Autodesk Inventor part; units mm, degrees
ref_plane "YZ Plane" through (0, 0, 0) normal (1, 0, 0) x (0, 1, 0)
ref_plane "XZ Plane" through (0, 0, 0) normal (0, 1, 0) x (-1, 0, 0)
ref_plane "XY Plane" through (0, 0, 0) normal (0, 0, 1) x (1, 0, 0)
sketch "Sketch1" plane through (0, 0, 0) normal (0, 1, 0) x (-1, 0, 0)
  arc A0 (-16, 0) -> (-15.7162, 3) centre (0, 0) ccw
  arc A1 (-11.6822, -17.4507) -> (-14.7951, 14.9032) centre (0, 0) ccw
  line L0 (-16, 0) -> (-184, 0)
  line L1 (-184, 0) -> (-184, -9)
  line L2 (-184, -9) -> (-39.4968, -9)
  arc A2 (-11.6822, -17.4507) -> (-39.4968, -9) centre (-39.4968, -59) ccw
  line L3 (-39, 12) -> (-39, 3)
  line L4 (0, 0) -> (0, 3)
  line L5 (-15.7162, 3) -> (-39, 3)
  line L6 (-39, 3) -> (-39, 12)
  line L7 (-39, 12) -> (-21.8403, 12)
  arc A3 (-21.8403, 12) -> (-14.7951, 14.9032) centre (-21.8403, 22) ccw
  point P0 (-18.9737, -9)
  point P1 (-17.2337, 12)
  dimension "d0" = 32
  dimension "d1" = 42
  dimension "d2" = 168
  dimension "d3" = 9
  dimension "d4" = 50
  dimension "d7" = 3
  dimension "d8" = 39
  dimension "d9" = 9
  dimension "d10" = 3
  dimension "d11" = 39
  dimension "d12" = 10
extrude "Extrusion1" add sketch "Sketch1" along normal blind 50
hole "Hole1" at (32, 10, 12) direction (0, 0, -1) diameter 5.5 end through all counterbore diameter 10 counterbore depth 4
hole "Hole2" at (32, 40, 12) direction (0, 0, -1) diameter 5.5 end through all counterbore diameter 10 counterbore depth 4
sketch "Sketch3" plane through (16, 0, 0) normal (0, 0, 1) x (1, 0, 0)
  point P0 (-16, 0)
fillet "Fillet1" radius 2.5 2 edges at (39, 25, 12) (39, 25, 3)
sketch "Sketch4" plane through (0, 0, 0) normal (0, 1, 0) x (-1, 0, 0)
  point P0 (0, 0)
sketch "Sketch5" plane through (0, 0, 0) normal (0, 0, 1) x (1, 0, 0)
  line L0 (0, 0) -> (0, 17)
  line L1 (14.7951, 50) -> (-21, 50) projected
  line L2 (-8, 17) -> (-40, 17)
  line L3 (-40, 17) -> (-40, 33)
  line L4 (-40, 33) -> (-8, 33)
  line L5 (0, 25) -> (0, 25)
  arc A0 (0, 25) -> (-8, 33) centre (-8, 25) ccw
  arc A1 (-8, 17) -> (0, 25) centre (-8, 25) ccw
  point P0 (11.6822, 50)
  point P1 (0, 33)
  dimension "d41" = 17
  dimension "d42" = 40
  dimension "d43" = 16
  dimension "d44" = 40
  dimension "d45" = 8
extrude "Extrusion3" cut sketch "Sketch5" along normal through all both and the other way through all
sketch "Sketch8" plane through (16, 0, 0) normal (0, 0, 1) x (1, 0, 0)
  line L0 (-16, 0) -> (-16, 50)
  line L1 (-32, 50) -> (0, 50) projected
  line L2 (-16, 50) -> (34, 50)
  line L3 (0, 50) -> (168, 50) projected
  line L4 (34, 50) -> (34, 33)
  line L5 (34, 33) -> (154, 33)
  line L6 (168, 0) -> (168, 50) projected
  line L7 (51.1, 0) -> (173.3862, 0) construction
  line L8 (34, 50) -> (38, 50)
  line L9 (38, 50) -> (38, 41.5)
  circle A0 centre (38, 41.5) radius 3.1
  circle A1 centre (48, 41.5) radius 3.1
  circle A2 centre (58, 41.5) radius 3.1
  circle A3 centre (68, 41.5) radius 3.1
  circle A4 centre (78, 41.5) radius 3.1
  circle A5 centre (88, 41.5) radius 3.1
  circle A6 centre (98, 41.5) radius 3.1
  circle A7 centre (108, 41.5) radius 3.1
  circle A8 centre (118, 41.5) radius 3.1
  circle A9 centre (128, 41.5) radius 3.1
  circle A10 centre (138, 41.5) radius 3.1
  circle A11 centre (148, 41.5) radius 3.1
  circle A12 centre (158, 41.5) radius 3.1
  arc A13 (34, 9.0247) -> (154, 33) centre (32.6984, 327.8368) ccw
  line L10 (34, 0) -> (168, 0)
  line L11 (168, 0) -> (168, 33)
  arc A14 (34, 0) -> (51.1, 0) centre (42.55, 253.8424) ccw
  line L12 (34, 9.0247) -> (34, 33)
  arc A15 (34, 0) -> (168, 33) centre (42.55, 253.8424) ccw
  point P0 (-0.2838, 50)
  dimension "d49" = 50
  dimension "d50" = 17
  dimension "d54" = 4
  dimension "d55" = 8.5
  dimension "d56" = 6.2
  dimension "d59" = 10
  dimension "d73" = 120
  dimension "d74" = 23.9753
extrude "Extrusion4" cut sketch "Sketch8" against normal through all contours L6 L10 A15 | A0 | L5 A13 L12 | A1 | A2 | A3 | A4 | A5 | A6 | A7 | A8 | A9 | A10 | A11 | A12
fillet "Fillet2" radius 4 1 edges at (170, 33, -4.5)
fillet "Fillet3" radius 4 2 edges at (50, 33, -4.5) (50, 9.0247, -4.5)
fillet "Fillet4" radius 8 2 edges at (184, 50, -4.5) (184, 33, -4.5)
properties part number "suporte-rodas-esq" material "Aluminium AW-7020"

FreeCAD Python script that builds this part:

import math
import FreeCAD as App
import Part
import Sketcher
Q = App.Units.Quantity


def edges_at(feature, points):
    """Names of the edges that pass closest to the given points."""
    edges = feature.Shape.Edges
    near = lambda p: min(range(len(edges)), key=lambda i: edges[i].distToShape(Part.Vertex(*p))[0])
    return sorted({f"Edge{near(p) + 1}" for p in points})

doc = App.newDocument("Part")
body = doc.addObject("PartDesign::Body", "Body")

sketch1 = body.newObject("Sketcher::SketchObject", "Sketch")
sketch1.AttachmentSupport = (doc.getObject("XZ_Plane"), [""])
sketch1.MapMode = "FlatFace"
sketch1.addGeometry([
    Part.ArcOfCircle(Part.Circle(App.Vector(0, 0, 0), App.Vector(0, 0, 1), 16), math.radians(11), math.radians(360)),
    Part.LineSegment(App.Vector(16, 0, 0), App.Vector(184, 0, 0)),
    Part.LineSegment(App.Vector(184, 0, 0), App.Vector(184, -9, 0)),
    Part.LineSegment(App.Vector(184, -9, 0), App.Vector(39.5, -9, 0)),
    Part.ArcOfCircle(Part.Circle(App.Vector(39.5, -59, 0), App.Vector(0, 0, 1), 50), math.radians(90), math.radians(124)),
    Part.ArcOfCircle(Part.Circle(App.Vector(0, 0, 0), App.Vector(0, 0, 1), 21), math.radians(45), math.radians(304)),
    Part.ArcOfCircle(Part.Circle(App.Vector(21.8, 22, 0), App.Vector(0, 0, 1), 10), math.radians(-135), math.radians(-90)),
    Part.LineSegment(App.Vector(21.8, 12, 0), App.Vector(39, 12, 0)),
    Part.LineSegment(App.Vector(39, 12, 0), App.Vector(39, 3, 0)),
    Part.LineSegment(App.Vector(39, 3, 0), App.Vector(15.7, 3, 0)),
], False)
sketch1.addConstraint([
    Sketcher.Constraint("Coincident", 0, 2, 1, 1),
    Sketcher.Constraint("Coincident", 1, 2, 2, 1),
    Sketcher.Constraint("Coincident", 2, 2, 3, 1),
    Sketcher.Constraint("Tangent", 3, 2, 4, 1),
    Sketcher.Constraint("Tangent", 4, 2, 5, 2),
    Sketcher.Constraint("Tangent", 5, 1, 6, 1),
    Sketcher.Constraint("Tangent", 6, 2, 7, 1),
    Sketcher.Constraint("Coincident", 7, 2, 8, 1),
    Sketcher.Constraint("Coincident", 8, 2, 9, 1),
    Sketcher.Constraint("Coincident", 9, 2, 0, 1),
    Sketcher.Constraint("Horizontal", 1),
    Sketcher.Constraint("Vertical", 2),
    Sketcher.Constraint("Horizontal", 3),
    Sketcher.Constraint("Horizontal", 7),
    Sketcher.Constraint("Vertical", 8),
    Sketcher.Constraint("Horizontal", 9),
    Sketcher.Constraint("Coincident", 0, 3, -1, 1),
    Sketcher.Constraint("Coincident", 5, 3, -1, 1),
    Sketcher.Constraint("PointOnObject", 0, 2, -1),
    Sketcher.Constraint("Equal", 2, 8),
    Sketcher.Constraint("Radius", 0, Q("16 mm")),
    Sketcher.Constraint("Radius", 4, Q("50 mm")),
    Sketcher.Constraint("Radius", 5, Q("21 mm")),
    Sketcher.Constraint("Radius", 6, Q("10 mm")),
    Sketcher.Constraint("DistanceX", 1, 1, 1, 2, Q("168 mm")),
    Sketcher.Constraint("DistanceY", 2, 2, 2, 1, Q("9 mm")),
    Sketcher.Constraint("DistanceX", -1, 1, 7, 2, Q("39 mm")),
    Sketcher.Constraint("DistanceY", -1, 1, 8, 2, Q("3 mm")),
])
pad1 = body.newObject("PartDesign::Pad", "Pad")
pad1.Profile = sketch1
pad1.Length = 50
pad1.Reversed = True

sketch2 = body.newObject("Sketcher::SketchObject", "Sketch001")
sketch2.AttachmentSupport = (doc.getObject("XY_Plane"), [""])
sketch2.MapMode = "FlatFace"
sketch2.AttachmentOffset = App.Placement(App.Vector(0, 0, 12), App.Rotation())
sketch2.addGeometry(Part.Circle(App.Vector(32, 10, 0), App.Vector(0, 0, 1), 2.8), False)
sketch2.addConstraint([
    Sketcher.Constraint("Diameter", 0, Q("5.5 mm")),
    Sketcher.Constraint("DistanceX", -1, 1, 0, 3, Q("32 mm")),
    Sketcher.Constraint("DistanceY", -1, 1, 0, 3, Q("10 mm")),
])
doc.recompute()
hole = body.newObject("PartDesign::Hole", "Hole")
hole.Profile = sketch2
hole.ThreadType = "None"
hole.Diameter = 5.5
hole.DepthType = "ThroughAll"
hole.HoleCutType = "Counterbore"
hole.HoleCutDiameter = 10
hole.HoleCutDepth = 4

sketch3 = body.newObject("Sketcher::SketchObject", "Sketch002")
sketch3.AttachmentSupport = (doc.getObject("XY_Plane"), [""])
sketch3.MapMode = "FlatFace"
sketch3.AttachmentOffset = App.Placement(App.Vector(0, 0, 12), App.Rotation())
sketch3.addGeometry(Part.Circle(App.Vector(32, 40, 0), App.Vector(0, 0, 1), 2.8), False)
sketch3.addConstraint([
    Sketcher.Constraint("Diameter", 0, Q("5.5 mm")),
    Sketcher.Constraint("DistanceX", -1, 1, 0, 3, Q("32 mm")),
    Sketcher.Constraint("DistanceY", -1, 1, 0, 3, Q("40 mm")),
])
doc.recompute()
hole2 = body.newObject("PartDesign::Hole", "Hole001")
hole2.Profile = sketch3
hole2.ThreadType = "None"
hole2.Diameter = 5.5
hole2.DepthType = "ThroughAll"
hole2.HoleCutType = "Counterbore"
hole2.HoleCutDiameter = 10
hole2.HoleCutDepth = 4
doc.recompute()

fillet = body.newObject("PartDesign::Fillet", "Fillet")
fillet.Base = (hole2, edges_at(hole2, [(39, 25, 12), (39, 25, 3)]))
fillet.Radius = 2.5

sketch4 = body.newObject("Sketcher::SketchObject", "Sketch003")
sketch4.AttachmentSupport = (doc.getObject("XY_Plane"), [""])
sketch4.MapMode = "FlatFace"
sketch4.addGeometry([
    Part.LineSegment(App.Vector(-40, 17, 0), App.Vector(-8, 17, 0)),
    Part.ArcOfCircle(Part.Circle(App.Vector(-8, 25, 0), App.Vector(0, 0, 1), 8), math.radians(-90), math.radians(90)),
    Part.LineSegment(App.Vector(-8, 33, 0), App.Vector(-40, 33, 0)),
    Part.LineSegment(App.Vector(-40, 33, 0), App.Vector(-40, 17, 0)),
], False)
sketch4.addConstraint([
    Sketcher.Constraint("Tangent", 0, 2, 1, 1),
    Sketcher.Constraint("Tangent", 1, 2, 2, 1),
    Sketcher.Constraint("Coincident", 2, 2, 3, 1),
    Sketcher.Constraint("Coincident", 3, 2, 0, 1),
    Sketcher.Constraint("Horizontal", 0),
    Sketcher.Constraint("Horizontal", 2),
    Sketcher.Constraint("Vertical", 3),
    Sketcher.Constraint("Radius", 1, Q("8 mm")),
    Sketcher.Constraint("DistanceX", 1, 3, -1, 1, Q("8 mm")),
    Sketcher.Constraint("DistanceY", -1, 1, 0, 2, Q("17 mm")),
    Sketcher.Constraint("DistanceX", 2, 2, -1, 1, Q("40 mm")),
])
pocket1 = body.newObject("PartDesign::Pocket", "Pocket")
pocket1.Profile = sketch4
pocket1.Type = "ThroughAll"
pocket1.Midplane = True

sketch5 = body.newObject("Sketcher::SketchObject", "Sketch004")
sketch5.AttachmentSupport = (doc.getObject("XY_Plane"), [""])
sketch5.MapMode = "FlatFace"
sketch5.addGeometry([
    Part.LineSegment(App.Vector(184, 0, 0), App.Vector(184, 33, 0)),
    Part.ArcOfCircle(Part.Circle(App.Vector(58.5, 253.8, 0), App.Vector(0, 0, 1), 254), math.radians(-88), math.radians(-60)),
    Part.LineSegment(App.Vector(67.1, 0, 0), App.Vector(184, 0, 0)),
    Part.Circle(App.Vector(54, 41.5, 0), App.Vector(0, 0, 1), 3.1),
    Part.LineSegment(App.Vector(170, 33, 0), App.Vector(50, 33, 0)),
    Part.LineSegment(App.Vector(50, 33, 0), App.Vector(50, 9, 0)),
    Part.ArcOfCircle(Part.Circle(App.Vector(48.7, 327.8, 0), App.Vector(0, 0, 1), 318.8), math.radians(-90), math.radians(-68)),
    Part.Circle(App.Vector(64, 41.5, 0), App.Vector(0, 0, 1), 3.1),
    Part.Circle(App.Vector(74, 41.5, 0), App.Vector(0, 0, 1), 3.1),
    Part.Circle(App.Vector(84, 41.5, 0), App.Vector(0, 0, 1), 3.1),
    Part.Circle(App.Vector(94, 41.5, 0), App.Vector(0, 0, 1), 3.1),
    Part.Circle(App.Vector(104, 41.5, 0), App.Vector(0, 0, 1), 3.1),
    Part.Circle(App.Vector(114, 41.5, 0), App.Vector(0, 0, 1), 3.1),
    Part.Circle(App.Vector(124, 41.5, 0), App.Vector(0, 0, 1), 3.1),
    Part.Circle(App.Vector(134, 41.5, 0), App.Vector(0, 0, 1), 3.1),
    Part.Circle(App.Vector(144, 41.5, 0), App.Vector(0, 0, 1), 3.1),
    Part.Circle(App.Vector(154, 41.5, 0), App.Vector(0, 0, 1), 3.1),
    Part.Circle(App.Vector(164, 41.5, 0), App.Vector(0, 0, 1), 3.1),
    Part.Circle(App.Vector(174, 41.5, 0), App.Vector(0, 0, 1), 3.1),
], False)
sketch5.addConstraint([
    Sketcher.Constraint("Coincident", 0, 2, 1, 2),
    Sketcher.Constraint("Coincident", 1, 1, 2, 1),
    Sketcher.Constraint("Coincident", 2, 2, 0, 1),
    Sketcher.Constraint("Coincident", 4, 2, 5, 1),
    Sketcher.Constraint("Coincident", 5, 2, 6, 1),
    Sketcher.Constraint("Coincident", 6, 2, 4, 1),
    Sketcher.Constraint("Vertical", 0),
    Sketcher.Constraint("Horizontal", 2),
    Sketcher.Constraint("Horizontal", 4),
    Sketcher.Constraint("Vertical", 5),
    Sketcher.Constraint("Equal", 3, 7),
    Sketcher.Constraint("Equal", 7, 8),
    Sketcher.Constraint("Equal", 8, 9),
    Sketcher.Constraint("Equal", 9, 10),
    Sketcher.Constraint("Equal", 10, 11),
    Sketcher.Constraint("Equal", 11, 12),
    Sketcher.Constraint("Equal", 12, 13),
    Sketcher.Constraint("Equal", 13, 14),
    Sketcher.Constraint("Equal", 14, 15),
    Sketcher.Constraint("Equal", 15, 16),
    Sketcher.Constraint("Equal", 16, 17),
    Sketcher.Constraint("Equal", 17, 18),
    Sketcher.Constraint("PointOnObject", 1, 1, -1),
    Sketcher.Constraint("Horizontal", 3, 3, 7, 3),
    Sketcher.Constraint("Horizontal", 7, 3, 8, 3),
    Sketcher.Constraint("Horizontal", 8, 3, 9, 3),
    Sketcher.Constraint("Horizontal", 9, 3, 10, 3),
    Sketcher.Constraint("Horizontal", 10, 3, 11, 3),
    Sketcher.Constraint("Horizontal", 11, 3, 12, 3),
    Sketcher.Constraint("Horizontal", 12, 3, 13, 3),
    Sketcher.Constraint("Horizontal", 13, 3, 14, 3),
    Sketcher.Constraint("Horizontal", 14, 3, 15, 3),
    Sketcher.Constraint("Horizontal", 15, 3, 16, 3),
    Sketcher.Constraint("Horizontal", 16, 3, 17, 3),
    Sketcher.Constraint("Horizontal", 17, 3, 18, 3),
    Sketcher.Constraint("Horizontal", 0, 2, 4, 2),
    Sketcher.Constraint("Diameter", 3, Q("6.2 mm")),
    Sketcher.Constraint("DistanceX", 4, 2, 4, 1, Q("120 mm")),
    Sketcher.Constraint("DistanceX", -1, 1, 4, 2, Q("50 mm")),
    Sketcher.Constraint("DistanceX", 3, 3, 7, 3, Q("10 mm")),
    Sketcher.Constraint("DistanceX", 7, 3, 8, 3, Q("10 mm")),
    Sketcher.Constraint("DistanceX", 8, 3, 9, 3, Q("10 mm")),
    Sketcher.Constraint("DistanceX", 9, 3, 10, 3, Q("10 mm")),
    Sketcher.Constraint("DistanceX", 10, 3, 11, 3, Q("10 mm")),
    Sketcher.Constraint("DistanceX", 11, 3, 12, 3, Q("10 mm")),
    Sketcher.Constraint("DistanceX", 12, 3, 13, 3, Q("10 mm")),
    Sketcher.Constraint("DistanceX", 13, 3, 14, 3, Q("10 mm")),
    Sketcher.Constraint("DistanceX", 14, 3, 15, 3, Q("10 mm")),
    Sketcher.Constraint("DistanceX", 15, 3, 16, 3, Q("10 mm")),
    Sketcher.Constraint("DistanceX", 16, 3, 17, 3, Q("10 mm")),
    Sketcher.Constraint("DistanceX", 17, 3, 18, 3, Q("10 mm")),
    Sketcher.Constraint("DistanceX", 18, 3, 0, 2, Q("10 mm")),
    Sketcher.Constraint("DistanceX", 4, 2, 3, 3, Q("4 mm")),
    Sketcher.Constraint("DistanceY", 0, 2, 18, 3, Q("8.5 mm")),
    Sketcher.Constraint("DistanceY", 0, 1, 0, 2, Q("33 mm")),
    Sketcher.Constraint("DistanceX", 2, 1, 2, 2, Q("116.9 mm")),
    Sketcher.Constraint("DistanceY", 5, 2, 5, 1, Q("23.9753 mm")),
    Sketcher.Constraint("Radius", 1, Q("253.9864 mm")),
    Sketcher.Constraint("Radius", 6, Q("318.8134 mm")),
])
pocket2 = body.newObject("PartDesign::Pocket", "Pocket001")
pocket2.Profile = sketch5
pocket2.Type = "ThroughAll"
doc.recompute()

fillet2 = body.newObject("PartDesign::Fillet", "Fillet001")
fillet2.Base = (pocket2, edges_at(pocket2, [(170, 33, -4.5)]))
fillet2.Radius = 4
doc.recompute()

fillet3 = body.newObject("PartDesign::Fillet", "Fillet002")
fillet3.Base = (fillet2, edges_at(fillet2, [(50, 33, -4.5), (50, 9.025, -4.5)]))
fillet3.Radius = 4
doc.recompute()

fillet4 = body.newObject("PartDesign::Fillet", "Fillet003")
fillet4.Base = (fillet3, edges_at(fillet3, [(184, 50, -4.5), (184, 33, -4.5)]))
fillet4.Radius = 8

doc.recompute()
